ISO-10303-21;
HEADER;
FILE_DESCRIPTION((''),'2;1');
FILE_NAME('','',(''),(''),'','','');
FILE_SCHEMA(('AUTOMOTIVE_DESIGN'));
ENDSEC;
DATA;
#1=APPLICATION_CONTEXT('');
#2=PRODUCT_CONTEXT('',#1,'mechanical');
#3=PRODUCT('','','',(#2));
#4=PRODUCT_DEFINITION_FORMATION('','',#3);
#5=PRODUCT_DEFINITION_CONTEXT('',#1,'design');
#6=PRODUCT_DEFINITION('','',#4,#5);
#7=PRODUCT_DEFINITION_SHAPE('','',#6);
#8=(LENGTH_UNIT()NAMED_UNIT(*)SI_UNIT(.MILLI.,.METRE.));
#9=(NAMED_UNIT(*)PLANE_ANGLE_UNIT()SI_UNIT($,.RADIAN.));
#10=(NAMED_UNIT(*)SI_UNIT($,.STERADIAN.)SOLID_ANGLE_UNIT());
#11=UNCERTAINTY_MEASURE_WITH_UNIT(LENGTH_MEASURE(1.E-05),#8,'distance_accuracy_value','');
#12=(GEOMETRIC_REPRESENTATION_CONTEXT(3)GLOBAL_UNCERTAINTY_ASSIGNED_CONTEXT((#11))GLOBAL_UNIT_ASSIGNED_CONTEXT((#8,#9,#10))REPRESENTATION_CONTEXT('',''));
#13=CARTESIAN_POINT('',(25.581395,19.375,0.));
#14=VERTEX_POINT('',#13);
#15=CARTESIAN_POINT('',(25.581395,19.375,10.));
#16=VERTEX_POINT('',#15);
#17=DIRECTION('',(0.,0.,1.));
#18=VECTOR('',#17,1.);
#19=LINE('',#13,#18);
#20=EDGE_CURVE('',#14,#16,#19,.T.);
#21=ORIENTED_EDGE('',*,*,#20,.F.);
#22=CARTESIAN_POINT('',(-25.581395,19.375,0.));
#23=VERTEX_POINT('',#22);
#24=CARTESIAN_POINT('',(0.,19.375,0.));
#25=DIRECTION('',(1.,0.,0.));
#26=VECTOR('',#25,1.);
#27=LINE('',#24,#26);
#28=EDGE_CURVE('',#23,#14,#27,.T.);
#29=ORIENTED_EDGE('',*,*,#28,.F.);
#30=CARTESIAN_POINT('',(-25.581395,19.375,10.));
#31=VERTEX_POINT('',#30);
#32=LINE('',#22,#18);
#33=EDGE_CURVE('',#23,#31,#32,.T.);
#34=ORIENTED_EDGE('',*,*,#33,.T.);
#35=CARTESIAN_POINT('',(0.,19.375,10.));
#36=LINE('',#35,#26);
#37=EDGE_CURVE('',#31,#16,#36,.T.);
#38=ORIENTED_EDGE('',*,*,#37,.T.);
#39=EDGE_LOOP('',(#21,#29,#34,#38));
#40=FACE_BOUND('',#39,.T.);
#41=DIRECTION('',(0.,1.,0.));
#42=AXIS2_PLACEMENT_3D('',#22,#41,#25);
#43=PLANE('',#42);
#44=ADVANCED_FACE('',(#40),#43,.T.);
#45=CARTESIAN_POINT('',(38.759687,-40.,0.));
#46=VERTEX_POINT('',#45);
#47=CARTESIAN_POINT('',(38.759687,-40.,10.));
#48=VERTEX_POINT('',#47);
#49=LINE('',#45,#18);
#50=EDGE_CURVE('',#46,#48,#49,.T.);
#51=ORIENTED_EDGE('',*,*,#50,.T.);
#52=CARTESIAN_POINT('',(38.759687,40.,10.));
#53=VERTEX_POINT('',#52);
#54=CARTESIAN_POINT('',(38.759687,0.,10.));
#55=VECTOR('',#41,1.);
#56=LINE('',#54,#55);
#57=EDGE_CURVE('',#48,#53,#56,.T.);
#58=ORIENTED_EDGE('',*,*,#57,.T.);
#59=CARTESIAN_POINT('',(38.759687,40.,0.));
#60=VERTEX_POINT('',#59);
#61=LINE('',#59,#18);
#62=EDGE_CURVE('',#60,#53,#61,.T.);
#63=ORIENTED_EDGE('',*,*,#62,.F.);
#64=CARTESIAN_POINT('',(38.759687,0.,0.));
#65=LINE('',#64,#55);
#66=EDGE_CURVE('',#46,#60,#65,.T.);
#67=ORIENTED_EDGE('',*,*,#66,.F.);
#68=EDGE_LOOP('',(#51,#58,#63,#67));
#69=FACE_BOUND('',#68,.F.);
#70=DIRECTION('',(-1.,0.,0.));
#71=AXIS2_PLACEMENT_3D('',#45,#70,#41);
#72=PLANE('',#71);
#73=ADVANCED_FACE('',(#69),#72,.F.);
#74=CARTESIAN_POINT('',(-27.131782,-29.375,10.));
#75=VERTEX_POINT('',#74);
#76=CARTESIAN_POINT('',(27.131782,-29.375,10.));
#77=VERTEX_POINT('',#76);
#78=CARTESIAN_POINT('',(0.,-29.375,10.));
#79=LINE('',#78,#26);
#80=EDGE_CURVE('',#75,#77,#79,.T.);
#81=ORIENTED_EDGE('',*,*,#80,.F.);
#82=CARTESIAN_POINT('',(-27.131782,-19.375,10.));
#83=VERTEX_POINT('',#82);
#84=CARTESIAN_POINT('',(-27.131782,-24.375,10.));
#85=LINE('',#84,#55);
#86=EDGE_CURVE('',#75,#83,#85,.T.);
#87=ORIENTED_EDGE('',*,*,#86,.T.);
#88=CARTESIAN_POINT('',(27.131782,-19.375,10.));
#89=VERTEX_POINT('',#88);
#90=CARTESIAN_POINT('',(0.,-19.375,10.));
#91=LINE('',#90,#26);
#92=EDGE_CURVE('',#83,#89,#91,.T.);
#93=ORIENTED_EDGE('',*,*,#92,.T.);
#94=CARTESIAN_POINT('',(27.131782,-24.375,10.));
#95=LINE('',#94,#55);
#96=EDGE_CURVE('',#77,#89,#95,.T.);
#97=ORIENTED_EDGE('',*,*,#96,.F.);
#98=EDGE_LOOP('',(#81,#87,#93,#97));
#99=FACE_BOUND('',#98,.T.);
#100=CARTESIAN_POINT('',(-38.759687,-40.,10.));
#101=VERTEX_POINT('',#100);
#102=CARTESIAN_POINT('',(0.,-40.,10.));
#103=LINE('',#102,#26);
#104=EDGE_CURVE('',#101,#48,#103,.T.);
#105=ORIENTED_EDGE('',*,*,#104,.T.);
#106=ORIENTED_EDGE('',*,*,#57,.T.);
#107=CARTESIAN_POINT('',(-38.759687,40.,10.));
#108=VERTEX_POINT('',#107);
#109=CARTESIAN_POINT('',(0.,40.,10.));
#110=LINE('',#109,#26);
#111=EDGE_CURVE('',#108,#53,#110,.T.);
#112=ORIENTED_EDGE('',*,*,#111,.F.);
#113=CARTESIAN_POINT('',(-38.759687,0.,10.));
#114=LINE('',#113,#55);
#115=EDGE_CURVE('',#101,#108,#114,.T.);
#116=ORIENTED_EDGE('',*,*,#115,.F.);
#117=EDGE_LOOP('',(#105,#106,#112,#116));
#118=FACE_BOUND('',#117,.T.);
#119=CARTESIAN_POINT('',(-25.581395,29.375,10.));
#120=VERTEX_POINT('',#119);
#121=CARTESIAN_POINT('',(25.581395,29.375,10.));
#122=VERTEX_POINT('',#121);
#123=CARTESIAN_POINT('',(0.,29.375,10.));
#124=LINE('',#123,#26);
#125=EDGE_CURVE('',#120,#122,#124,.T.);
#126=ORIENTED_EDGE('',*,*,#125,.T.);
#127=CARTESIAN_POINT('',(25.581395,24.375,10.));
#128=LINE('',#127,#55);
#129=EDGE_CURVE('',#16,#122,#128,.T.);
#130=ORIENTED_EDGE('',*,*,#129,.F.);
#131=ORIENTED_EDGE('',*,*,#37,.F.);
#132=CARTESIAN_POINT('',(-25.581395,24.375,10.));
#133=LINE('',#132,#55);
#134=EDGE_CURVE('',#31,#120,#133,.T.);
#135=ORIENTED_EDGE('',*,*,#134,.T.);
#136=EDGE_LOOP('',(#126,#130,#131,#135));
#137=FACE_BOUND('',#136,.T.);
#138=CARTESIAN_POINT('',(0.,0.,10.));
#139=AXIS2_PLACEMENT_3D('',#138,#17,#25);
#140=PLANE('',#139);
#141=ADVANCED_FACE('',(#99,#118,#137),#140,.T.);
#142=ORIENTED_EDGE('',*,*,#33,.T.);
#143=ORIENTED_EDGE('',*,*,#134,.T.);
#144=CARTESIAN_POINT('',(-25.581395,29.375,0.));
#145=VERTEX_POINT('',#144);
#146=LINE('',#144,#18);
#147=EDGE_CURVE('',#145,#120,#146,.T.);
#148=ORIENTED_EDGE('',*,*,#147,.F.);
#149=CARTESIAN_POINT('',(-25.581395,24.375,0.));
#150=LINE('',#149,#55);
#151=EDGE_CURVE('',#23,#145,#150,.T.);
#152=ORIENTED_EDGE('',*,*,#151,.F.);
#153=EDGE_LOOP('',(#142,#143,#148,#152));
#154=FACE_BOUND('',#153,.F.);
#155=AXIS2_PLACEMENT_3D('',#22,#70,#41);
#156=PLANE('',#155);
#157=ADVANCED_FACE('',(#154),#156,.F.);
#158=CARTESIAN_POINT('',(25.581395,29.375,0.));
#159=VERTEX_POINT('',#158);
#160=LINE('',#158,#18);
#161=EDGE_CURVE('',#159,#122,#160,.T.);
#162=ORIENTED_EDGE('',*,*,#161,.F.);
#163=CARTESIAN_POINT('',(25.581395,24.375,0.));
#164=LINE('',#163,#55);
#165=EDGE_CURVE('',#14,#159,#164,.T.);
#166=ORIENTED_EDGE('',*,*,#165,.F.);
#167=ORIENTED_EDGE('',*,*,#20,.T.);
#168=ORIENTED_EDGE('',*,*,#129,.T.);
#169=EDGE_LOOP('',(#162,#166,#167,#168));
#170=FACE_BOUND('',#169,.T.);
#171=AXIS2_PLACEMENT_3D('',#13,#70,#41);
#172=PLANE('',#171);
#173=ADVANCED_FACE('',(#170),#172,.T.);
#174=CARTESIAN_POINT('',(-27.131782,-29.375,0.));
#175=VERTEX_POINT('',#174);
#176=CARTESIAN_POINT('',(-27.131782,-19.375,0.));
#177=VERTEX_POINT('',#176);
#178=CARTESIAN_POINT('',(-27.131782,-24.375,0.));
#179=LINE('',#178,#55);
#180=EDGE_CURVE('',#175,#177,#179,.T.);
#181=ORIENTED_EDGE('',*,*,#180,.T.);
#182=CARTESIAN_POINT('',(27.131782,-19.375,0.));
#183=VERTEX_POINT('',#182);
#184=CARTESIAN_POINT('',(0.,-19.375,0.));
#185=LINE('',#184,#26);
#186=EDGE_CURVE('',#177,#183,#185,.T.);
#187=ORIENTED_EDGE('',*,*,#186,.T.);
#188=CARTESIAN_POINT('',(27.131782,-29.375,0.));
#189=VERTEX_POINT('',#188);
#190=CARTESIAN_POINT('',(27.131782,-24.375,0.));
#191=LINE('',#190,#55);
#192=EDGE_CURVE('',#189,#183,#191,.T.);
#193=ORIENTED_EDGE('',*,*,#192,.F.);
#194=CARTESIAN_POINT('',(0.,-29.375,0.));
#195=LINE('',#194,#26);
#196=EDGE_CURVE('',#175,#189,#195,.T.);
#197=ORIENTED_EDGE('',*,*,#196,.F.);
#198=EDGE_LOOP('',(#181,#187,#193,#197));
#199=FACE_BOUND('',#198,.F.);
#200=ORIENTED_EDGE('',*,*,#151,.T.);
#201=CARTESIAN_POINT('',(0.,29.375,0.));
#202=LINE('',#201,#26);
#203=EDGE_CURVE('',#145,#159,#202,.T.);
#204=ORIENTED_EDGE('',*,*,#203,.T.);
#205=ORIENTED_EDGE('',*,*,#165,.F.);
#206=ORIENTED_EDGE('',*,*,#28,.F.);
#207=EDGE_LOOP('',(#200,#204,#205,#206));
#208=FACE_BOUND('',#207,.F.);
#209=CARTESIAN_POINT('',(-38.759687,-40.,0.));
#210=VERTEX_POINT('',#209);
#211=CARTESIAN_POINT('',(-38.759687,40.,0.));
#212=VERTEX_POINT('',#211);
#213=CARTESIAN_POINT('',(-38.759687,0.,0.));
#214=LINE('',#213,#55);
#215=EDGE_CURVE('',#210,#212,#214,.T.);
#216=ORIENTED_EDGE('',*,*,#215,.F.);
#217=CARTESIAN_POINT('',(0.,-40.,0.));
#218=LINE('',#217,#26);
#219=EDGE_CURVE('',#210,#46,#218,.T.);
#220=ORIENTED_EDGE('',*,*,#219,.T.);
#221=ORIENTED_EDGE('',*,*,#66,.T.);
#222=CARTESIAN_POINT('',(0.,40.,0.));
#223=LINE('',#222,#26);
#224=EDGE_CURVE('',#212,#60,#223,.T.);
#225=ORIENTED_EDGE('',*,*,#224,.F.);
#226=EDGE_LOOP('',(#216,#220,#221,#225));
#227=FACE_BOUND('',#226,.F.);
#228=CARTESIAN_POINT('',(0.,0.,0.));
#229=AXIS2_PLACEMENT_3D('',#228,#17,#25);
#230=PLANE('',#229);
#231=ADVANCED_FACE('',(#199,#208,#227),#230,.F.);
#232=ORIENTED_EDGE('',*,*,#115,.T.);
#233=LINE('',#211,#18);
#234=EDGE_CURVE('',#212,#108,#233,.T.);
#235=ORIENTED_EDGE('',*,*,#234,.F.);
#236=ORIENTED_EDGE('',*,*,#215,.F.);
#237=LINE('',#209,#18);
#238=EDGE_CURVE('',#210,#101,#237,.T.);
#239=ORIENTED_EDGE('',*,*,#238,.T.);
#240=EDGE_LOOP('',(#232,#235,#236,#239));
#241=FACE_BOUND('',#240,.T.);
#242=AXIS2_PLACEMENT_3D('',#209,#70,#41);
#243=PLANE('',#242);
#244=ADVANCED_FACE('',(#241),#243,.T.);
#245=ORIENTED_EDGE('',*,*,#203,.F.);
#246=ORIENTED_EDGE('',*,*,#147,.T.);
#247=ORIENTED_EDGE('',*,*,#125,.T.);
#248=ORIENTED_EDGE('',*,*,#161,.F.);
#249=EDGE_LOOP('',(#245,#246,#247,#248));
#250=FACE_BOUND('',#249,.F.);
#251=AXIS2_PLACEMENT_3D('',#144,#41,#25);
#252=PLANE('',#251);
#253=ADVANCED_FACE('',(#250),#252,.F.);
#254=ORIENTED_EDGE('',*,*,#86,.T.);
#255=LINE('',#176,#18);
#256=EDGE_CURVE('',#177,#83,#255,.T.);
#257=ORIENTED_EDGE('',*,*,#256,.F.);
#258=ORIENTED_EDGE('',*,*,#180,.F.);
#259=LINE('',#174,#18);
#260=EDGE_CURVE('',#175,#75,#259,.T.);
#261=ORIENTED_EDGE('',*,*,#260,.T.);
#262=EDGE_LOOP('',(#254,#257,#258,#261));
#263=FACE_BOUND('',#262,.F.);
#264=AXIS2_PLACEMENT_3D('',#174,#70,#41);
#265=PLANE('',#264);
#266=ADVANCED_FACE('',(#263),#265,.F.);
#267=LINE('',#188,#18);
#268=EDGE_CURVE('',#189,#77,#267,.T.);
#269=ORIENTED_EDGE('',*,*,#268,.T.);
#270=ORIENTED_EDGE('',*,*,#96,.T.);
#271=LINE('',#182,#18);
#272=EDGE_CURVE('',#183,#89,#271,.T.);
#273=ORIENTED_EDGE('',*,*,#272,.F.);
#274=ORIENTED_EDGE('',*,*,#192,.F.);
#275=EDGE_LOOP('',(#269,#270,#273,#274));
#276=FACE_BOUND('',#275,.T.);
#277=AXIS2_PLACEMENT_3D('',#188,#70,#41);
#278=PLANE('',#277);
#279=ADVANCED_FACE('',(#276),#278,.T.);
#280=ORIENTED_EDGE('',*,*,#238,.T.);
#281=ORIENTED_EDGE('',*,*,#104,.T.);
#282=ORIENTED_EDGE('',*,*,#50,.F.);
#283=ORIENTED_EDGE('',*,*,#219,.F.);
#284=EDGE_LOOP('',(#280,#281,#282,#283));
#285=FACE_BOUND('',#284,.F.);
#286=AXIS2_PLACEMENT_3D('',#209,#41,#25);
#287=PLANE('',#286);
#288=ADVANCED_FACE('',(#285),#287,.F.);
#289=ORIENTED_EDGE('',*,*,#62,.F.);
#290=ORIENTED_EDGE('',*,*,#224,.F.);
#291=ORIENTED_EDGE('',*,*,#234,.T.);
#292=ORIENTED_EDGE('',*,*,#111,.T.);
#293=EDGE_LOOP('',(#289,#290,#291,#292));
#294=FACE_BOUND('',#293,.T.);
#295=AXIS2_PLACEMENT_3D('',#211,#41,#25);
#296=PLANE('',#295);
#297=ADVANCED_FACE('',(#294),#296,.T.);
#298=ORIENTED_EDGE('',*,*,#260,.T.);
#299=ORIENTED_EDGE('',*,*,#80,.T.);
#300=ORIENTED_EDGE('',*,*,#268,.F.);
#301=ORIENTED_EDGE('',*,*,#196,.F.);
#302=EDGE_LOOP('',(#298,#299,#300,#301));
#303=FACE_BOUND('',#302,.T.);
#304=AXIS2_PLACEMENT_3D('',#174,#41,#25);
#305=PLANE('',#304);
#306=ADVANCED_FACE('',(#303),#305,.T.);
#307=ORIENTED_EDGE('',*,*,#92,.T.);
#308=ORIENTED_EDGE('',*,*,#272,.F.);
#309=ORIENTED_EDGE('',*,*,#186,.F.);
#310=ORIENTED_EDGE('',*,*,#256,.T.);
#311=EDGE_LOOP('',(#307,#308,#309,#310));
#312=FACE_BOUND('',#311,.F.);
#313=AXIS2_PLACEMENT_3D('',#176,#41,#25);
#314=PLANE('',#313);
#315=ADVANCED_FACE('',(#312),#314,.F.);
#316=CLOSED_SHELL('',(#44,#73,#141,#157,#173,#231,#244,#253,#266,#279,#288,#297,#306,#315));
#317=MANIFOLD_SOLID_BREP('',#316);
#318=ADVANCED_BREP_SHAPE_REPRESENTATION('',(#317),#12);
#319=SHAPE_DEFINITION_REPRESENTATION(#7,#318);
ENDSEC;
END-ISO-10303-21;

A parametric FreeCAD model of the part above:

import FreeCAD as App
import Part
import Sketcher

doc = App.newDocument("Part")
body = doc.addObject("PartDesign::Body", "Body")

sketch1 = doc.addObject("Sketcher::SketchObject", "Sketch")
body.addObject(sketch1)
sketch1.AttachmentSupport = (doc.XY_Plane, [""])
sketch1.MapMode = "FlatFace"
sketch1.addGeometry([
    Part.LineSegment(App.Vector(-38.759687, 40, 0), App.Vector(-38.759687, -40, 0)),
    Part.LineSegment(App.Vector(-38.759687, -40, 0), App.Vector(38.759687, -40, 0)),
    Part.LineSegment(App.Vector(38.759687, -40, 0), App.Vector(38.759687, 40, 0)),
    Part.LineSegment(App.Vector(38.759687, 40, 0), App.Vector(-38.759687, 40, 0)),
    Part.LineSegment(App.Vector(27.131782, -29.375, 0), App.Vector(-27.131782, -29.375, 0)),
    Part.LineSegment(App.Vector(-27.131782, -29.375, 0), App.Vector(-27.131782, -19.375, 0)),
    Part.LineSegment(App.Vector(-27.131782, -19.375, 0), App.Vector(27.131782, -19.375, 0)),
    Part.LineSegment(App.Vector(27.131782, -19.375, 0), App.Vector(27.131782, -29.375, 0)),
    Part.LineSegment(App.Vector(25.581395, 19.375, 0), App.Vector(-25.581395, 19.375, 0)),
    Part.LineSegment(App.Vector(-25.581395, 19.375, 0), App.Vector(-25.581395, 29.375, 0)),
    Part.LineSegment(App.Vector(-25.581395, 29.375, 0), App.Vector(25.581395, 29.375, 0)),
    Part.LineSegment(App.Vector(25.581395, 29.375, 0), App.Vector(25.581395, 19.375, 0)),
], False)
sketch1.addConstraint([
    Sketcher.Constraint("Coincident", 0, 2, 1, 1),
    Sketcher.Constraint("Coincident", 1, 2, 2, 1),
    Sketcher.Constraint("Coincident", 2, 2, 3, 1),
    Sketcher.Constraint("Coincident", 3, 2, 0, 1),
    Sketcher.Constraint("Coincident", 4, 2, 5, 1),
    Sketcher.Constraint("Coincident", 5, 2, 6, 1),
    Sketcher.Constraint("Coincident", 6, 2, 7, 1),
    Sketcher.Constraint("Coincident", 7, 2, 4, 1),
    Sketcher.Constraint("Coincident", 8, 2, 9, 1),
    Sketcher.Constraint("Coincident", 9, 2, 10, 1),
    Sketcher.Constraint("Coincident", 10, 2, 11, 1),
    Sketcher.Constraint("Coincident", 11, 2, 8, 1),
    Sketcher.Constraint("Vertical", 0),
    Sketcher.Constraint("Horizontal", 1),
    Sketcher.Constraint("Vertical", 2),
    Sketcher.Constraint("Horizontal", 3),
    Sketcher.Constraint("Horizontal", 4),
    Sketcher.Constraint("Vertical", 5),
    Sketcher.Constraint("Horizontal", 6),
    Sketcher.Constraint("Vertical", 7),
    Sketcher.Constraint("Horizontal", 8),
    Sketcher.Constraint("Vertical", 9),
    Sketcher.Constraint("Horizontal", 10),
    Sketcher.Constraint("Vertical", 11),
    Sketcher.Constraint("Symmetric", 0, 2, 2, 2, -1, 1),
    Sketcher.Constraint("Equal", 7, 9),
    Sketcher.Constraint("DistanceY", 0, 2, 0, 1, 80.0),
    Sketcher.Constraint("DistanceY", 5, 1, 5, 2, 10.0),
    Sketcher.Constraint("DistanceY", 5, 2, 8, 2, 38.75),
    Sketcher.Constraint("DistanceY", 4, 2, -1, 1, 29.375),
    Sketcher.Constraint("DistanceX", 8, 2, 8, 1, 51.16279),
    Sketcher.Constraint("DistanceX", 1, 1, 1, 2, 77.519374),
    Sketcher.Constraint("DistanceX", 4, 2, 4, 1, 54.263564),
    Sketcher.Constraint("DistanceX", 4, 2, 1, 2, 65.891469),
    Sketcher.Constraint("DistanceX", 3, 2, 8, 2, 13.178292),
])
pad1 = doc.addObject("PartDesign::Pad", "Pad")
body.addObject(pad1)
pad1.Profile = sketch1
pad1.Length = 10

doc.recompute()
